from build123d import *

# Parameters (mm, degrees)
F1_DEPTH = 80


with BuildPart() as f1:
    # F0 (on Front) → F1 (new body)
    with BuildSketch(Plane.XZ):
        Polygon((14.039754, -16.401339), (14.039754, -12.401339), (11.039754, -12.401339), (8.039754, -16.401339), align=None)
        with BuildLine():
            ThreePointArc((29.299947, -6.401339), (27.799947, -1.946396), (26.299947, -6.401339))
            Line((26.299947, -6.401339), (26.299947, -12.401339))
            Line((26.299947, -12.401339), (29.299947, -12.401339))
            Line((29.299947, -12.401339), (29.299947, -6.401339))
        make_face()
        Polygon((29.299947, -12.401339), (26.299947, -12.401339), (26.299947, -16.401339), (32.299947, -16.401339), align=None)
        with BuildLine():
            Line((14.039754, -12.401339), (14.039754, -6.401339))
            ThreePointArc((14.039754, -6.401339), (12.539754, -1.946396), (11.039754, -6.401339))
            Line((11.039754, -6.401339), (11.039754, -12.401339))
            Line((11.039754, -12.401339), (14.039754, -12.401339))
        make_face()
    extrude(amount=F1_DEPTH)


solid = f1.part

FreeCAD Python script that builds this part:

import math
import FreeCAD as App
import Part
import Sketcher

V = App.Vector

doc = App.newDocument("Part")
body = doc.addObject("PartDesign::Body", "Body")
body.AllowCompound = True

sketch1 = body.newObject("Sketcher::SketchObject", "Sketch")
sketch1.AttachmentSupport = (doc.getObject("XZ_Plane"), [""])
sketch1.MapMode = "FlatFace"
sketch1.addGeometry(Part.LineSegment(V(14, -16.4, 0), V(14, -6.4, 0)), False)
sketch1.addGeometry(Part.ArcOfCircle(Part.Circle(V(12.5, -4.4, 0), V(0, 0, 1), 2.5), math.radians(-53), math.radians(233)), False)
sketch1.addGeometry(Part.LineSegment(V(11, -6.4, 0), V(11, -12.4, 0)), False)
sketch1.addGeometry(Part.LineSegment(V(11, -12.4, 0), V(8, -16.4, 0)), False)
sketch1.addGeometry(Part.LineSegment(V(8, -16.4, 0), V(14, -16.4, 0)), False)
sketch1.addGeometry(Part.ArcOfCircle(Part.Circle(V(27.8, -4.4, 0), V(0, 0, 1), 2.5), math.radians(-53), math.radians(233)), False)
sketch1.addGeometry(Part.LineSegment(V(26.3, -6.4, 0), V(26.3, -16.4, 0)), False)
sketch1.addGeometry(Part.LineSegment(V(26.3, -16.4, 0), V(32.3, -16.4, 0)), False)
sketch1.addGeometry(Part.LineSegment(V(32.3, -16.4, 0), V(29.3, -12.4, 0)), False)
sketch1.addGeometry(Part.LineSegment(V(29.3, -12.4, 0), V(29.3, -6.4, 0)), False)
sketch1.addConstraint(Sketcher.Constraint("Coincident", 0, 2, 1, 1))
sketch1.addConstraint(Sketcher.Constraint("Coincident", 1, 2, 2, 1))
sketch1.addConstraint(Sketcher.Constraint("Coincident", 2, 2, 3, 1))
sketch1.addConstraint(Sketcher.Constraint("Coincident", 3, 2, 4, 1))
sketch1.addConstraint(Sketcher.Constraint("Coincident", 4, 2, 0, 1))
sketch1.addConstraint(Sketcher.Constraint("Coincident", 5, 2, 6, 1))
sketch1.addConstraint(Sketcher.Constraint("Coincident", 6, 2, 7, 1))
sketch1.addConstraint(Sketcher.Constraint("Coincident", 7, 2, 8, 1))
sketch1.addConstraint(Sketcher.Constraint("Coincident", 8, 2, 9, 1))
sketch1.addConstraint(Sketcher.Constraint("Coincident", 9, 2, 5, 1))
sketch1.addConstraint(Sketcher.Constraint("Vertical", 0))
sketch1.addConstraint(Sketcher.Constraint("Vertical", 2))
sketch1.addConstraint(Sketcher.Constraint("Horizontal", 4))
sketch1.addConstraint(Sketcher.Constraint("Vertical", 6))
sketch1.addConstraint(Sketcher.Constraint("Horizontal", 7))
sketch1.addConstraint(Sketcher.Constraint("Vertical", 9))
sketch1.addConstraint(Sketcher.Constraint("Equal", 1, 5))
sketch1.addConstraint(Sketcher.Constraint("Horizontal", 1, 3, 5, 3))
sketch1.addConstraint(Sketcher.Constraint("Horizontal", 0, 2, 1, 2))
sketch1.addConstraint(Sketcher.Constraint("Horizontal", 1, 2, 5, 2))
sketch1.addConstraint(Sketcher.Constraint("Horizontal", 4, 2, 6, 2))
sketch1.addConstraint(Sketcher.Constraint("Horizontal", 2, 2, 8, 2))
sketch1.addConstraint(Sketcher.Constraint("Horizontal", 5, 2, 9, 2))
sketch1.addConstraint(Sketcher.Constraint("Equal", 4, 7))
sketch1.addConstraint(Sketcher.Constraint("Equal", 7, 2))
sketch1.addConstraint(Sketcher.Constraint("DistanceX", 4, 1, 4, 2, 6.0))
sketch1.addConstraint(Sketcher.Constraint("DistanceY", 0, 1, 0, 2, 10.0))
sketch1.addConstraint(Sketcher.Constraint("Radius", 1, 2.48))
sketch1.addConstraint(Sketcher.Constraint("Distance", 3, 5.0))
sketch1.addConstraint(Sketcher.Constraint("DistanceY", 0, 2, -1, 1, 6.401339))
sketch1.addConstraint(Sketcher.Constraint("DistanceX", -1, 1, 1, 3, 12.539754))
sketch1.addConstraint(Sketcher.Constraint("DistanceX", -1, 1, 5, 3, 27.799947))
pad1 = body.newObject("PartDesign::Pad", "Pad")
pad1.Profile = sketch1
pad1.Length = 80

doc.recompute()
